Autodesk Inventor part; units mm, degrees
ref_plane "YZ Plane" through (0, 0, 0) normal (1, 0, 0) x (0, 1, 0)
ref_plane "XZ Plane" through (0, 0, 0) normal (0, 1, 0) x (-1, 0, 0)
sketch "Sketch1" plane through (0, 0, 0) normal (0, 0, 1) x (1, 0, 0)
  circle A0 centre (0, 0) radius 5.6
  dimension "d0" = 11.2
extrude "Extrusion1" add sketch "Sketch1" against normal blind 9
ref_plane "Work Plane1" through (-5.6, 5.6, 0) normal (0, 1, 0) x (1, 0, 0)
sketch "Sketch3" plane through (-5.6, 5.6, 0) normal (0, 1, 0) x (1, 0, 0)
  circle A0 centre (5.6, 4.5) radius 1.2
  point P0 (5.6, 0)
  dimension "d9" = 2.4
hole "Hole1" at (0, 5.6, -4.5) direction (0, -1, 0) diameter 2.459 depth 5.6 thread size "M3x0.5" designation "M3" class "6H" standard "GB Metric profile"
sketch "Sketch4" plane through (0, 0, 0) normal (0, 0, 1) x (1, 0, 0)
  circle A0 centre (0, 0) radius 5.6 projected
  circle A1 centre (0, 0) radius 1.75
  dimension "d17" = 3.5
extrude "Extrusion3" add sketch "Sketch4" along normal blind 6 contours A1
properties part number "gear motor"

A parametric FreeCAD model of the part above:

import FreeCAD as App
import Part
import Sketcher
from FreeCAD import Vector
Q = App.Units.Quantity

doc = App.newDocument("Part")
params = doc.addObject("Spreadsheet::Sheet", "Params")
for row, (alias, value) in enumerate([
    ("sketch1_diameter", "11.2 mm"),
    ("pad1_length", "9 mm"),
    ("hole_diameter", "2.459 mm"),
    ("hole_depth", "5.6 mm"),
    ("sketch3_diameter", "3.5 mm"),
    ("pad2_length", "6 mm"),
], start=1):
    params.set(f"A{row}", alias)
    params.set(f"B{row}", "=" + value)
    params.setAlias(f"B{row}", alias)

body = doc.addObject("PartDesign::Body", "Body")

sketch1 = doc.addObject("Sketcher::SketchObject", "Sketch")
body.addObject(sketch1)
sketch1.AttachmentSupport = (doc.XY_Plane, [""])
sketch1.MapMode = "FlatFace"
sketch1.addGeometry(Part.Circle(Vector(0, 0, 0), Vector(0, 0, 1), 6), False)
sketch1.addConstraint(Sketcher.Constraint("Coincident", 0, 3, -1, 1))
sketch1.addConstraint(Sketcher.Constraint("Diameter", 0, Q("11.2 mm")))
sketch1.setExpression("Constraints[1]", "Params.sketch1_diameter")
pad1 = doc.addObject("PartDesign::Pad", "Pad")
body.addObject(pad1)
pad1.Profile = sketch1
pad1.setExpression("Length", "Params.pad1_length")
pad1.Reversed = True

sketch2 = doc.addObject("Sketcher::SketchObject", "Sketch001")
body.addObject(sketch2)
sketch2.AttachmentSupport = (doc.XZ_Plane, [""])
sketch2.MapMode = "FlatFace"
sketch2.AttachmentOffset = App.Placement(Vector(0, 0, -5.6), App.Rotation())
sketch2.addGeometry(Part.Circle(Vector(0, -4.5, 0), Vector(0, 0, 1), 1.2), False)
sketch2.addConstraint(Sketcher.Constraint("PointOnObject", 0, 3, -2))
sketch2.addConstraint(Sketcher.Constraint("Diameter", 0, Q("2.459 mm")))
sketch2.addConstraint(Sketcher.Constraint("DistanceY", 0, 3, -1, 1, Q("4.5 mm")))
doc.recompute()
hole = doc.addObject("PartDesign::Hole", "Hole")
body.addObject(hole)
hole.Profile = sketch2
hole.ThreadType = "None"
hole.setExpression("Diameter", "Params.hole_diameter")
hole.DepthType = "Dimension"
hole.setExpression("Depth", "Params.hole_depth")
hole.DrillPoint = "Flat"
hole.Reversed = True

sketch3 = doc.addObject("Sketcher::SketchObject", "Sketch002")
body.addObject(sketch3)
sketch3.AttachmentSupport = (doc.XY_Plane, [""])
sketch3.MapMode = "FlatFace"
sketch3.addGeometry(Part.Circle(Vector(0, 0, 0), Vector(0, 0, 1), 1.8), False)
sketch3.addConstraint(Sketcher.Constraint("Coincident", 0, 3, -1, 1))
sketch3.addConstraint(Sketcher.Constraint("Diameter", 0, Q("3.5 mm")))
sketch3.setExpression("Constraints[1]", "Params.sketch3_diameter")
pad2 = doc.addObject("PartDesign::Pad", "Pad001")
body.addObject(pad2)
pad2.Profile = sketch3
pad2.setExpression("Length", "Params.pad2_length")

doc.recompute()
